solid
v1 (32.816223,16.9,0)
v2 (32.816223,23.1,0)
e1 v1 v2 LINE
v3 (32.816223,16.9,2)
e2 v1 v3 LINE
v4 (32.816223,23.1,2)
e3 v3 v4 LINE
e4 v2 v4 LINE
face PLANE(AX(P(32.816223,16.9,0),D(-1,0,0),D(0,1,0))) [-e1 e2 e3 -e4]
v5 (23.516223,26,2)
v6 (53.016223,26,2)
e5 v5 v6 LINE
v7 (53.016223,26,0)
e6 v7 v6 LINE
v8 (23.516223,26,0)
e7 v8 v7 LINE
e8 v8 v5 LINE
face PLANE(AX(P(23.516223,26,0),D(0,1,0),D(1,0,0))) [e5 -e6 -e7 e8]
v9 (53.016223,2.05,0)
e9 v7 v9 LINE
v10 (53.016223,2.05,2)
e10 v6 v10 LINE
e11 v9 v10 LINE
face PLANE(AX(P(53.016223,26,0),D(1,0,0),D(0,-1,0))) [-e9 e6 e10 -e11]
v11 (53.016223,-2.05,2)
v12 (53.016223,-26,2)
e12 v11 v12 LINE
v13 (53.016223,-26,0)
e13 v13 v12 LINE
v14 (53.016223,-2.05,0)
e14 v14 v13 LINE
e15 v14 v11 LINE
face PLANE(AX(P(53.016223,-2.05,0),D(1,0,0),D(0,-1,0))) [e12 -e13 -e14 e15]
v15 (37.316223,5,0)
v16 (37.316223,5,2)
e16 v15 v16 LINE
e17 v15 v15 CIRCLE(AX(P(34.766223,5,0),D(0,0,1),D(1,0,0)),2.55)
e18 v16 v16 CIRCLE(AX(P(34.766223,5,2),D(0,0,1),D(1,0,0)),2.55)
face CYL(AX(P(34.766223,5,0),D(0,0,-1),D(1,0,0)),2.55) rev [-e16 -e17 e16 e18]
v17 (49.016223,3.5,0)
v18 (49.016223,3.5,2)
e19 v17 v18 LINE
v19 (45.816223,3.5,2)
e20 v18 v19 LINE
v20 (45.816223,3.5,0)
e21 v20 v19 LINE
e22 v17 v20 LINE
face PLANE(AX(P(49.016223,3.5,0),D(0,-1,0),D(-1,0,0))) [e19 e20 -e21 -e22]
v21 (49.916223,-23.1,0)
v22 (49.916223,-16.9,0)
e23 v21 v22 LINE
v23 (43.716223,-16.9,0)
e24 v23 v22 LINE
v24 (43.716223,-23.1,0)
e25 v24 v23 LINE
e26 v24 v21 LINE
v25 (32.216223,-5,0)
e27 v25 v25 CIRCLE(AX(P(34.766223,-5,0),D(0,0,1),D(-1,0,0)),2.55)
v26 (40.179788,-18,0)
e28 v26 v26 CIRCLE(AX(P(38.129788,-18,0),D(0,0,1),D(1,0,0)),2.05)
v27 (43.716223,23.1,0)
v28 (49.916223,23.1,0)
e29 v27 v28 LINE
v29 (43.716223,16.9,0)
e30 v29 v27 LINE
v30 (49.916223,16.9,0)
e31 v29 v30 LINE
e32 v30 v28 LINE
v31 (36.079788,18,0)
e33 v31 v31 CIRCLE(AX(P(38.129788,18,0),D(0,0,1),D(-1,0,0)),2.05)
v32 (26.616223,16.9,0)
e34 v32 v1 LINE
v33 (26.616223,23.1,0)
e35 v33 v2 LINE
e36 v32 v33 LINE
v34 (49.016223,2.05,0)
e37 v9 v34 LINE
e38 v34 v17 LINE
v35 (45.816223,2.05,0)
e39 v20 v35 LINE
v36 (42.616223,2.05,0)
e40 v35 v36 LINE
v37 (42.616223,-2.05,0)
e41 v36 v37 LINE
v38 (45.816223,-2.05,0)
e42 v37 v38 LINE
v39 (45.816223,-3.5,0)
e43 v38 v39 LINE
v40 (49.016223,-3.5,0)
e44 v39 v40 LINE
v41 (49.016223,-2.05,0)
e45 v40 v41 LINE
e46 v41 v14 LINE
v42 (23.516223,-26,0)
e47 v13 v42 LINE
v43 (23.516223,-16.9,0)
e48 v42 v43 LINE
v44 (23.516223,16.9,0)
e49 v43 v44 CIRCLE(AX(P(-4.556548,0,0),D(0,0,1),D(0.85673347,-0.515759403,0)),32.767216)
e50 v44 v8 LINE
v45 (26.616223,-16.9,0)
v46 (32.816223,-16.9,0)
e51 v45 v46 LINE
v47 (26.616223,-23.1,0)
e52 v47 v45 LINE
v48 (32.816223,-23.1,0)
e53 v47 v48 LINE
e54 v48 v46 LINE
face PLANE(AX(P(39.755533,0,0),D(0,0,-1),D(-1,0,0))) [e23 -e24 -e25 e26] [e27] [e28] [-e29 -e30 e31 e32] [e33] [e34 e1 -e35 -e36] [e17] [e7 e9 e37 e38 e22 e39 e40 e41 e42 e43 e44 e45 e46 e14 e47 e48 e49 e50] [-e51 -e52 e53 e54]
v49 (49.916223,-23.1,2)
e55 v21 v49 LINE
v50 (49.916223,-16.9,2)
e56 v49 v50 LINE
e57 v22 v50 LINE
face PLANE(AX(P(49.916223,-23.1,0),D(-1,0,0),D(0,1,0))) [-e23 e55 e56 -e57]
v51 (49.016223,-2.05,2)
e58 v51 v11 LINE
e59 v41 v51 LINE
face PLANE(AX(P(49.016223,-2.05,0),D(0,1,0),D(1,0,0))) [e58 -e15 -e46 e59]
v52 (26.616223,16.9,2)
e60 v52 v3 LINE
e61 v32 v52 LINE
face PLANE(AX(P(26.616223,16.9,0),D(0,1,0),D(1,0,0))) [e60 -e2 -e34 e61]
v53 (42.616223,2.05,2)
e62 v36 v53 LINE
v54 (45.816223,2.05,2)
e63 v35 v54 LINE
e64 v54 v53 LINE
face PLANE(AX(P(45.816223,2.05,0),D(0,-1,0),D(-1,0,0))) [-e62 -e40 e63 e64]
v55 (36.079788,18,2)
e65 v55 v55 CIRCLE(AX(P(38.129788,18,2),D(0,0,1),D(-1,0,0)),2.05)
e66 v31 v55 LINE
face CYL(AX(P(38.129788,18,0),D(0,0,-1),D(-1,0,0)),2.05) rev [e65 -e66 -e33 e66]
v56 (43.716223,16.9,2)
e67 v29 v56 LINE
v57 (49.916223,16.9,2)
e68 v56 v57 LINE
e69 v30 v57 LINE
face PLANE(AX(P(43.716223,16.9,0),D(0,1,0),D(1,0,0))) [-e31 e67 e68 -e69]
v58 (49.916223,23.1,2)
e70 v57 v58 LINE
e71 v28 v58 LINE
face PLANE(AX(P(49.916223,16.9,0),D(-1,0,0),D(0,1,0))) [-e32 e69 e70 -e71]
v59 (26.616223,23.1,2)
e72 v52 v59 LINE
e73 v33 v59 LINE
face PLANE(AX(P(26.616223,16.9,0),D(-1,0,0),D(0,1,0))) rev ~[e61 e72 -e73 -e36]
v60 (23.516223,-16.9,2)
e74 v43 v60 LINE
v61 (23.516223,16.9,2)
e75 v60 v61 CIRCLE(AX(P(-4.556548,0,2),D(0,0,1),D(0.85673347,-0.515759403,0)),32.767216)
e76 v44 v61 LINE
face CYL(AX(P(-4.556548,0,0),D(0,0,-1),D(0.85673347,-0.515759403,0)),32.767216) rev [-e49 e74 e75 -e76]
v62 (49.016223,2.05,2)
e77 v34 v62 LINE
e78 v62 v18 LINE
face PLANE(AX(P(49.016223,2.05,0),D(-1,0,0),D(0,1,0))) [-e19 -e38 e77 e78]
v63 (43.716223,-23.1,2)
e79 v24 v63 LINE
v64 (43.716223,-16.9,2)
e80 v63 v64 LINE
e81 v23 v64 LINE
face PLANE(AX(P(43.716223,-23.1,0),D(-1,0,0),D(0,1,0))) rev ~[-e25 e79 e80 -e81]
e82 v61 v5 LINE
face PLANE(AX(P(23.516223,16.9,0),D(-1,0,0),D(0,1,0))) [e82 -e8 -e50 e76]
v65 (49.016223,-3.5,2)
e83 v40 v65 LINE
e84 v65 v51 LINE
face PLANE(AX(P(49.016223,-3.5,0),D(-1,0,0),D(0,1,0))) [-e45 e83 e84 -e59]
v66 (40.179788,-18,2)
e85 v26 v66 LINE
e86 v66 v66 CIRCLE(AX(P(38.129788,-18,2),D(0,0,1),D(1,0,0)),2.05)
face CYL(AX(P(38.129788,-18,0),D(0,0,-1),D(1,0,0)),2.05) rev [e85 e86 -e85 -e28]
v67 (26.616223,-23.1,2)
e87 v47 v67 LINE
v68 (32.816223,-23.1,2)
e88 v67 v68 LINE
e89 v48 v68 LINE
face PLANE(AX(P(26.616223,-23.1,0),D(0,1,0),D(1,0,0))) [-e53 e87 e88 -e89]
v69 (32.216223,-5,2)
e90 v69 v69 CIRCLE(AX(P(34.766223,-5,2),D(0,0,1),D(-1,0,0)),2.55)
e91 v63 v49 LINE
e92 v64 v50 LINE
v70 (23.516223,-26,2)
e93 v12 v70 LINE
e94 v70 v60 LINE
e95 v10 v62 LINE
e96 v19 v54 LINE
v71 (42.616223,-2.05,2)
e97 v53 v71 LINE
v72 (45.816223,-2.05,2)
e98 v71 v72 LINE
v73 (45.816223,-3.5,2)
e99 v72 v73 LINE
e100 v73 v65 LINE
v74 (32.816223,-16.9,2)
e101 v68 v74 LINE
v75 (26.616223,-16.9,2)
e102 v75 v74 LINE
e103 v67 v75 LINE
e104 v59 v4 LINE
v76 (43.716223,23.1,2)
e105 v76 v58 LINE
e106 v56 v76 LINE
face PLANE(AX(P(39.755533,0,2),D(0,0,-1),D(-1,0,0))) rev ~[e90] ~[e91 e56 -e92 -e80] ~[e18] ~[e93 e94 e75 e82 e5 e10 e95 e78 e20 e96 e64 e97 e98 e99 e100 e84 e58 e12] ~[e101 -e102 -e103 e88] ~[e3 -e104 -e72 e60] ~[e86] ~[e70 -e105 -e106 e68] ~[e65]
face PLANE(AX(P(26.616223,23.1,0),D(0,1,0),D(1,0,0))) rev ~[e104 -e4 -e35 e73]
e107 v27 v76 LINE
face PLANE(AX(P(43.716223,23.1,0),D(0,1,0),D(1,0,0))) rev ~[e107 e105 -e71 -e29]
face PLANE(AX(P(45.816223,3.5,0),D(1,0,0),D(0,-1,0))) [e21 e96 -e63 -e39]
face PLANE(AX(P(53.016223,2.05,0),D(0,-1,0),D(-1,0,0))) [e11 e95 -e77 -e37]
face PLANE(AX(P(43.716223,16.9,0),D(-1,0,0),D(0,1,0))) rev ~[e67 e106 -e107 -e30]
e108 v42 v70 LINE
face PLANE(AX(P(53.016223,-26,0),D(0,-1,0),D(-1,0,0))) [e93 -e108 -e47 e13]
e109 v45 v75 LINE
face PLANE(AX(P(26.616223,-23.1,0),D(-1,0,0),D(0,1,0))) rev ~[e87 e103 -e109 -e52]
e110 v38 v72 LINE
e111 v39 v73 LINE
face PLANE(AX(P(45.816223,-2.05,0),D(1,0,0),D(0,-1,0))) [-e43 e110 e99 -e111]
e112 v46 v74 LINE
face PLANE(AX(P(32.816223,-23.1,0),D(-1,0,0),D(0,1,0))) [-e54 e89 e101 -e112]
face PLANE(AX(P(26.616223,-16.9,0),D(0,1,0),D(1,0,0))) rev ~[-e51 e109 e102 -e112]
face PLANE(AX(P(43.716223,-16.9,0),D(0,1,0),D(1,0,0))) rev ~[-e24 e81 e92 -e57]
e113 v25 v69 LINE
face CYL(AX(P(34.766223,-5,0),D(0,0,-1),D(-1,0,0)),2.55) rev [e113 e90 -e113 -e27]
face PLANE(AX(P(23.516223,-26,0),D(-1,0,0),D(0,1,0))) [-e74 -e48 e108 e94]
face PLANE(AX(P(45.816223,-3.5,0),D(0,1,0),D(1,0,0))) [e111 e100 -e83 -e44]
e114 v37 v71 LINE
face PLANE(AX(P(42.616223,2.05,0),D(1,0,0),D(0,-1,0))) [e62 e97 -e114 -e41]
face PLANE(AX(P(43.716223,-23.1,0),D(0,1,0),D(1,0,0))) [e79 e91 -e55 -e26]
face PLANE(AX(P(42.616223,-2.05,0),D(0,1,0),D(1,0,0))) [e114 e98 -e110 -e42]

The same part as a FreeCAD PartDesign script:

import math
import FreeCAD as App
import Part
import Sketcher
from FreeCAD import Vector


def add_polygon(sketch, points):
    """Adds a closed chain of lines whose ends are joined by coincident constraints."""
    first, n = sketch.GeometryCount, len(points)
    for a, b in zip(points, points[1:] + points[:1]):
        sketch.addGeometry(Part.LineSegment(App.Vector(*a, 0), App.Vector(*b, 0)), False)
    for i in range(n):
        sketch.addConstraint(Sketcher.Constraint("Coincident", first + i, 2, first + (i + 1) % n, 1))

doc = App.newDocument("Part")
body = doc.addObject("PartDesign::Body", "Body")

sketch1 = body.newObject("Sketcher::SketchObject", "Sketch")
sketch1.AttachmentSupport = (doc.getObject("XY_Plane"), [""])
sketch1.MapMode = "FlatFace"
sketch1.addGeometry(Part.LineSegment(Vector(23.5, -26, 0), Vector(53, -26, 0)), False)
sketch1.addGeometry(Part.LineSegment(Vector(53, -26, 0), Vector(53, -2, 0)), False)
sketch1.addGeometry(Part.LineSegment(Vector(53, -2, 0), Vector(49, -2, 0)), False)
sketch1.addGeometry(Part.LineSegment(Vector(49, -2, 0), Vector(49, -3.5, 0)), False)
sketch1.addGeometry(Part.LineSegment(Vector(49, -3.5, 0), Vector(45.8, -3.5, 0)), False)
sketch1.addGeometry(Part.LineSegment(Vector(45.8, -3.5, 0), Vector(45.8, -2, 0)), False)
sketch1.addGeometry(Part.LineSegment(Vector(45.8, -2, 0), Vector(42.6, -2, 0)), False)
sketch1.addGeometry(Part.LineSegment(Vector(42.6, -2, 0), Vector(42.6, 2, 0)), False)
sketch1.addGeometry(Part.LineSegment(Vector(42.6, 2, 0), Vector(45.8, 2, 0)), False)
sketch1.addGeometry(Part.LineSegment(Vector(45.8, 2, 0), Vector(45.8, 3.5, 0)), False)
sketch1.addGeometry(Part.LineSegment(Vector(45.8, 3.5, 0), Vector(49, 3.5, 0)), False)
sketch1.addGeometry(Part.LineSegment(Vector(49, 3.5, 0), Vector(49, 2, 0)), False)
sketch1.addGeometry(Part.LineSegment(Vector(49, 2, 0), Vector(53, 2, 0)), False)
sketch1.addGeometry(Part.LineSegment(Vector(53, 2, 0), Vector(53, 26, 0)), False)
sketch1.addGeometry(Part.LineSegment(Vector(53, 26, 0), Vector(23.5, 26, 0)), False)
sketch1.addGeometry(Part.LineSegment(Vector(23.5, 26, 0), Vector(23.5, 16.9, 0)), False)
sketch1.addGeometry(Part.ArcOfCircle(Part.Circle(Vector(-4.6, 0, 0), Vector(0, 0, 1), 32.8), math.radians(-31), math.radians(31)), False)
sketch1.addGeometry(Part.LineSegment(Vector(23.5, -16.9, 0), Vector(23.5, -26, 0)), False)
add_polygon(sketch1, [(43.7, -23.1), (43.7, -16.9), (49.9, -16.9), (49.9, -23.1)])
sketch1.addGeometry(Part.Circle(Vector(38.1, -18, 0), Vector(0, 0, 1), 2), False)
add_polygon(sketch1, [(26.6, -23.1), (26.6, -16.9), (32.8, -16.9), (32.8, -23.1)])
sketch1.addGeometry(Part.Circle(Vector(34.8, -5, 0), Vector(0, 0, 1), 2.5), False)
add_polygon(sketch1, [(43.7, 16.9), (43.7, 23.1), (49.9, 23.1), (49.9, 16.9)])
sketch1.addGeometry(Part.Circle(Vector(34.8, 5, 0), Vector(0, 0, 1), 2.5), False)
sketch1.addGeometry(Part.Circle(Vector(38.1, 18, 0), Vector(0, 0, 1), 2), False)
add_polygon(sketch1, [(26.6, 16.9), (26.6, 23.1), (32.8, 23.1), (32.8, 16.9)])
sketch1.addConstraint(Sketcher.Constraint("Coincident", 0, 2, 1, 1))
sketch1.addConstraint(Sketcher.Constraint("Coincident", 1, 2, 2, 1))
sketch1.addConstraint(Sketcher.Constraint("Coincident", 2, 2, 3, 1))
sketch1.addConstraint(Sketcher.Constraint("Coincident", 3, 2, 4, 1))
sketch1.addConstraint(Sketcher.Constraint("Coincident", 4, 2, 5, 1))
sketch1.addConstraint(Sketcher.Constraint("Coincident", 5, 2, 6, 1))
sketch1.addConstraint(Sketcher.Constraint("Coincident", 6, 2, 7, 1))
sketch1.addConstraint(Sketcher.Constraint("Coincident", 7, 2, 8, 1))
sketch1.addConstraint(Sketcher.Constraint("Coincident", 8, 2, 9, 1))
sketch1.addConstraint(Sketcher.Constraint("Coincident", 9, 2, 10, 1))
sketch1.addConstraint(Sketcher.Constraint("Coincident", 10, 2, 11, 1))
sketch1.addConstraint(Sketcher.Constraint("Coincident", 11, 2, 12, 1))
sketch1.addConstraint(Sketcher.Constraint("Coincident", 12, 2, 13, 1))
sketch1.addConstraint(Sketcher.Constraint("Coincident", 13, 2, 14, 1))
sketch1.addConstraint(Sketcher.Constraint("Coincident", 14, 2, 15, 1))
sketch1.addConstraint(Sketcher.Constraint("Coincident", 15, 2, 16, 2))
sketch1.addConstraint(Sketcher.Constraint("Coincident", 16, 1, 17, 1))
sketch1.addConstraint(Sketcher.Constraint("Coincident", 17, 2, 0, 1))
sketch1.addConstraint(Sketcher.Constraint("Horizontal", 0))
sketch1.addConstraint(Sketcher.Constraint("Vertical", 1))
sketch1.addConstraint(Sketcher.Constraint("Horizontal", 2))
sketch1.addConstraint(Sketcher.Constraint("Vertical", 3))
sketch1.addConstraint(Sketcher.Constraint("Horizontal", 4))
sketch1.addConstraint(Sketcher.Constraint("Vertical", 5))
sketch1.addConstraint(Sketcher.Constraint("Horizontal", 6))
sketch1.addConstraint(Sketcher.Constraint("Vertical", 7))
sketch1.addConstraint(Sketcher.Constraint("Horizontal", 8))
sketch1.addConstraint(Sketcher.Constraint("Vertical", 9))
sketch1.addConstraint(Sketcher.Constraint("Horizontal", 10))
sketch1.addConstraint(Sketcher.Constraint("Vertical", 11))
sketch1.addConstraint(Sketcher.Constraint("Horizontal", 12))
sketch1.addConstraint(Sketcher.Constraint("Vertical", 13))
sketch1.addConstraint(Sketcher.Constraint("Horizontal", 14))
sketch1.addConstraint(Sketcher.Constraint("Vertical", 15))
sketch1.addConstraint(Sketcher.Constraint("Vertical", 17))
sketch1.addConstraint(Sketcher.Constraint("Vertical", 18))
sketch1.addConstraint(Sketcher.Constraint("Horizontal", 19))
sketch1.addConstraint(Sketcher.Constraint("Vertical", 20))
sketch1.addConstraint(Sketcher.Constraint("Horizontal", 21))
sketch1.addConstraint(Sketcher.Constraint("Vertical", 23))
sketch1.addConstraint(Sketcher.Constraint("Horizontal", 24))
sketch1.addConstraint(Sketcher.Constraint("Vertical", 25))
sketch1.addConstraint(Sketcher.Constraint("Horizontal", 26))
sketch1.addConstraint(Sketcher.Constraint("Vertical", 28))
sketch1.addConstraint(Sketcher.Constraint("Horizontal", 29))
sketch1.addConstraint(Sketcher.Constraint("Vertical", 30))
sketch1.addConstraint(Sketcher.Constraint("Horizontal", 31))
sketch1.addConstraint(Sketcher.Constraint("Vertical", 34))
sketch1.addConstraint(Sketcher.Constraint("Horizontal", 35))
sketch1.addConstraint(Sketcher.Constraint("Vertical", 36))
sketch1.addConstraint(Sketcher.Constraint("Horizontal", 37))
sketch1.addConstraint(Sketcher.Constraint("Equal", 27, 32))
sketch1.addConstraint(Sketcher.Constraint("Equal", 22, 33))
sketch1.addConstraint(Sketcher.Constraint("Symmetric", 27, 3, 32, 3, -1))
sketch1.addConstraint(Sketcher.Constraint("Symmetric", 22, 3, 33, 3, -1))
sketch1.addConstraint(Sketcher.Constraint("Symmetric", 5, 2, 8, 2, -1))
sketch1.addConstraint(Sketcher.Constraint("Symmetric", 3, 2, 10, 2, -1))
sketch1.addConstraint(Sketcher.Constraint("Symmetric", 1, 2, 12, 2, -1))
sketch1.addConstraint(Sketcher.Constraint("Symmetric", 15, 2, 16, 1, -1))
sketch1.addConstraint(Sketcher.Constraint("Symmetric", 21, 2, 28, 2, -1))
sketch1.addConstraint(Sketcher.Constraint("Symmetric", 19, 2, 30, 2, -1))
sketch1.addConstraint(Sketcher.Constraint("Symmetric", 26, 2, 34, 2, -1))
sketch1.addConstraint(Sketcher.Constraint("Symmetric", 24, 2, 36, 2, -1))
sketch1.addConstraint(Sketcher.Constraint("Horizontal", 2, 2, 5, 2))
sketch1.addConstraint(Sketcher.Constraint("Horizontal", 16, 1, 18, 2))
sketch1.addConstraint(Sketcher.Constraint("Horizontal", 19, 2, 23, 2))
sketch1.addConstraint(Sketcher.Constraint("Horizontal", 21, 2, 25, 2))
sketch1.addConstraint(Sketcher.Constraint("Equal", 4, 6))
sketch1.addConstraint(Sketcher.Constraint("Equal", 21, 24))
sketch1.addConstraint(Sketcher.Constraint("Equal", 1, 13))
sketch1.addConstraint(Sketcher.Constraint("Equal", 37, 18))
sketch1.addConstraint(Sketcher.Constraint("Diameter", 22, 4.1))
sketch1.addConstraint(Sketcher.Constraint("Diameter", 27, 5.1))
sketch1.addConstraint(Sketcher.Constraint("DistanceX", 2, 2, 2, 1, 4.0))
sketch1.addConstraint(Sketcher.Constraint("DistanceX", 0, 1, 0, 2, 29.5))
sketch1.addConstraint(Sketcher.Constraint("DistanceX", 4, 2, 4, 1, 3.2))
sketch1.addConstraint(Sketcher.Constraint("DistanceX", 19, 1, 19, 2, 6.2))
sketch1.addConstraint(Sketcher.Constraint("DistanceY", 7, 1, 7, 2, 4.1))
sketch1.addConstraint(Sketcher.Constraint("DistanceY", 15, 2, 15, 1, 9.1))
sketch1.addConstraint(Sketcher.Constraint("DistanceY", 22, 3, -1, 1, 18.0))
sketch1.addConstraint(Sketcher.Constraint("DistanceY", 27, 3, -1, 1, 5.0))
sketch1.addConstraint(Sketcher.Constraint("DistanceY", 0, 2, -1, 1, 26.0))
sketch1.addConstraint(Sketcher.Constraint("DistanceY", 3, 2, 3, 1, 1.45))
sketch1.addConstraint(Sketcher.Constraint("DistanceX", 18, 2, 0, 2, 9.3))
sketch1.addConstraint(Sketcher.Constraint("DistanceX", 16, 1, 23, 2, 3.1))
sketch1.addConstraint(Sketcher.Constraint("DistanceX", 27, 3, 0, 2, 18.25))
sketch1.addConstraint(Sketcher.Constraint("Radius", 16, 32.767216))
sketch1.addConstraint(Sketcher.Constraint("DistanceX", 16, 3, -1, 1, 4.556548))
sketch1.addConstraint(Sketcher.Constraint("DistanceX", -1, 1, 22, 3, 38.129788))
pad1 = body.newObject("PartDesign::Pad", "Pad")
pad1.Profile = sketch1
pad1.Length = 2

doc.recompute()
